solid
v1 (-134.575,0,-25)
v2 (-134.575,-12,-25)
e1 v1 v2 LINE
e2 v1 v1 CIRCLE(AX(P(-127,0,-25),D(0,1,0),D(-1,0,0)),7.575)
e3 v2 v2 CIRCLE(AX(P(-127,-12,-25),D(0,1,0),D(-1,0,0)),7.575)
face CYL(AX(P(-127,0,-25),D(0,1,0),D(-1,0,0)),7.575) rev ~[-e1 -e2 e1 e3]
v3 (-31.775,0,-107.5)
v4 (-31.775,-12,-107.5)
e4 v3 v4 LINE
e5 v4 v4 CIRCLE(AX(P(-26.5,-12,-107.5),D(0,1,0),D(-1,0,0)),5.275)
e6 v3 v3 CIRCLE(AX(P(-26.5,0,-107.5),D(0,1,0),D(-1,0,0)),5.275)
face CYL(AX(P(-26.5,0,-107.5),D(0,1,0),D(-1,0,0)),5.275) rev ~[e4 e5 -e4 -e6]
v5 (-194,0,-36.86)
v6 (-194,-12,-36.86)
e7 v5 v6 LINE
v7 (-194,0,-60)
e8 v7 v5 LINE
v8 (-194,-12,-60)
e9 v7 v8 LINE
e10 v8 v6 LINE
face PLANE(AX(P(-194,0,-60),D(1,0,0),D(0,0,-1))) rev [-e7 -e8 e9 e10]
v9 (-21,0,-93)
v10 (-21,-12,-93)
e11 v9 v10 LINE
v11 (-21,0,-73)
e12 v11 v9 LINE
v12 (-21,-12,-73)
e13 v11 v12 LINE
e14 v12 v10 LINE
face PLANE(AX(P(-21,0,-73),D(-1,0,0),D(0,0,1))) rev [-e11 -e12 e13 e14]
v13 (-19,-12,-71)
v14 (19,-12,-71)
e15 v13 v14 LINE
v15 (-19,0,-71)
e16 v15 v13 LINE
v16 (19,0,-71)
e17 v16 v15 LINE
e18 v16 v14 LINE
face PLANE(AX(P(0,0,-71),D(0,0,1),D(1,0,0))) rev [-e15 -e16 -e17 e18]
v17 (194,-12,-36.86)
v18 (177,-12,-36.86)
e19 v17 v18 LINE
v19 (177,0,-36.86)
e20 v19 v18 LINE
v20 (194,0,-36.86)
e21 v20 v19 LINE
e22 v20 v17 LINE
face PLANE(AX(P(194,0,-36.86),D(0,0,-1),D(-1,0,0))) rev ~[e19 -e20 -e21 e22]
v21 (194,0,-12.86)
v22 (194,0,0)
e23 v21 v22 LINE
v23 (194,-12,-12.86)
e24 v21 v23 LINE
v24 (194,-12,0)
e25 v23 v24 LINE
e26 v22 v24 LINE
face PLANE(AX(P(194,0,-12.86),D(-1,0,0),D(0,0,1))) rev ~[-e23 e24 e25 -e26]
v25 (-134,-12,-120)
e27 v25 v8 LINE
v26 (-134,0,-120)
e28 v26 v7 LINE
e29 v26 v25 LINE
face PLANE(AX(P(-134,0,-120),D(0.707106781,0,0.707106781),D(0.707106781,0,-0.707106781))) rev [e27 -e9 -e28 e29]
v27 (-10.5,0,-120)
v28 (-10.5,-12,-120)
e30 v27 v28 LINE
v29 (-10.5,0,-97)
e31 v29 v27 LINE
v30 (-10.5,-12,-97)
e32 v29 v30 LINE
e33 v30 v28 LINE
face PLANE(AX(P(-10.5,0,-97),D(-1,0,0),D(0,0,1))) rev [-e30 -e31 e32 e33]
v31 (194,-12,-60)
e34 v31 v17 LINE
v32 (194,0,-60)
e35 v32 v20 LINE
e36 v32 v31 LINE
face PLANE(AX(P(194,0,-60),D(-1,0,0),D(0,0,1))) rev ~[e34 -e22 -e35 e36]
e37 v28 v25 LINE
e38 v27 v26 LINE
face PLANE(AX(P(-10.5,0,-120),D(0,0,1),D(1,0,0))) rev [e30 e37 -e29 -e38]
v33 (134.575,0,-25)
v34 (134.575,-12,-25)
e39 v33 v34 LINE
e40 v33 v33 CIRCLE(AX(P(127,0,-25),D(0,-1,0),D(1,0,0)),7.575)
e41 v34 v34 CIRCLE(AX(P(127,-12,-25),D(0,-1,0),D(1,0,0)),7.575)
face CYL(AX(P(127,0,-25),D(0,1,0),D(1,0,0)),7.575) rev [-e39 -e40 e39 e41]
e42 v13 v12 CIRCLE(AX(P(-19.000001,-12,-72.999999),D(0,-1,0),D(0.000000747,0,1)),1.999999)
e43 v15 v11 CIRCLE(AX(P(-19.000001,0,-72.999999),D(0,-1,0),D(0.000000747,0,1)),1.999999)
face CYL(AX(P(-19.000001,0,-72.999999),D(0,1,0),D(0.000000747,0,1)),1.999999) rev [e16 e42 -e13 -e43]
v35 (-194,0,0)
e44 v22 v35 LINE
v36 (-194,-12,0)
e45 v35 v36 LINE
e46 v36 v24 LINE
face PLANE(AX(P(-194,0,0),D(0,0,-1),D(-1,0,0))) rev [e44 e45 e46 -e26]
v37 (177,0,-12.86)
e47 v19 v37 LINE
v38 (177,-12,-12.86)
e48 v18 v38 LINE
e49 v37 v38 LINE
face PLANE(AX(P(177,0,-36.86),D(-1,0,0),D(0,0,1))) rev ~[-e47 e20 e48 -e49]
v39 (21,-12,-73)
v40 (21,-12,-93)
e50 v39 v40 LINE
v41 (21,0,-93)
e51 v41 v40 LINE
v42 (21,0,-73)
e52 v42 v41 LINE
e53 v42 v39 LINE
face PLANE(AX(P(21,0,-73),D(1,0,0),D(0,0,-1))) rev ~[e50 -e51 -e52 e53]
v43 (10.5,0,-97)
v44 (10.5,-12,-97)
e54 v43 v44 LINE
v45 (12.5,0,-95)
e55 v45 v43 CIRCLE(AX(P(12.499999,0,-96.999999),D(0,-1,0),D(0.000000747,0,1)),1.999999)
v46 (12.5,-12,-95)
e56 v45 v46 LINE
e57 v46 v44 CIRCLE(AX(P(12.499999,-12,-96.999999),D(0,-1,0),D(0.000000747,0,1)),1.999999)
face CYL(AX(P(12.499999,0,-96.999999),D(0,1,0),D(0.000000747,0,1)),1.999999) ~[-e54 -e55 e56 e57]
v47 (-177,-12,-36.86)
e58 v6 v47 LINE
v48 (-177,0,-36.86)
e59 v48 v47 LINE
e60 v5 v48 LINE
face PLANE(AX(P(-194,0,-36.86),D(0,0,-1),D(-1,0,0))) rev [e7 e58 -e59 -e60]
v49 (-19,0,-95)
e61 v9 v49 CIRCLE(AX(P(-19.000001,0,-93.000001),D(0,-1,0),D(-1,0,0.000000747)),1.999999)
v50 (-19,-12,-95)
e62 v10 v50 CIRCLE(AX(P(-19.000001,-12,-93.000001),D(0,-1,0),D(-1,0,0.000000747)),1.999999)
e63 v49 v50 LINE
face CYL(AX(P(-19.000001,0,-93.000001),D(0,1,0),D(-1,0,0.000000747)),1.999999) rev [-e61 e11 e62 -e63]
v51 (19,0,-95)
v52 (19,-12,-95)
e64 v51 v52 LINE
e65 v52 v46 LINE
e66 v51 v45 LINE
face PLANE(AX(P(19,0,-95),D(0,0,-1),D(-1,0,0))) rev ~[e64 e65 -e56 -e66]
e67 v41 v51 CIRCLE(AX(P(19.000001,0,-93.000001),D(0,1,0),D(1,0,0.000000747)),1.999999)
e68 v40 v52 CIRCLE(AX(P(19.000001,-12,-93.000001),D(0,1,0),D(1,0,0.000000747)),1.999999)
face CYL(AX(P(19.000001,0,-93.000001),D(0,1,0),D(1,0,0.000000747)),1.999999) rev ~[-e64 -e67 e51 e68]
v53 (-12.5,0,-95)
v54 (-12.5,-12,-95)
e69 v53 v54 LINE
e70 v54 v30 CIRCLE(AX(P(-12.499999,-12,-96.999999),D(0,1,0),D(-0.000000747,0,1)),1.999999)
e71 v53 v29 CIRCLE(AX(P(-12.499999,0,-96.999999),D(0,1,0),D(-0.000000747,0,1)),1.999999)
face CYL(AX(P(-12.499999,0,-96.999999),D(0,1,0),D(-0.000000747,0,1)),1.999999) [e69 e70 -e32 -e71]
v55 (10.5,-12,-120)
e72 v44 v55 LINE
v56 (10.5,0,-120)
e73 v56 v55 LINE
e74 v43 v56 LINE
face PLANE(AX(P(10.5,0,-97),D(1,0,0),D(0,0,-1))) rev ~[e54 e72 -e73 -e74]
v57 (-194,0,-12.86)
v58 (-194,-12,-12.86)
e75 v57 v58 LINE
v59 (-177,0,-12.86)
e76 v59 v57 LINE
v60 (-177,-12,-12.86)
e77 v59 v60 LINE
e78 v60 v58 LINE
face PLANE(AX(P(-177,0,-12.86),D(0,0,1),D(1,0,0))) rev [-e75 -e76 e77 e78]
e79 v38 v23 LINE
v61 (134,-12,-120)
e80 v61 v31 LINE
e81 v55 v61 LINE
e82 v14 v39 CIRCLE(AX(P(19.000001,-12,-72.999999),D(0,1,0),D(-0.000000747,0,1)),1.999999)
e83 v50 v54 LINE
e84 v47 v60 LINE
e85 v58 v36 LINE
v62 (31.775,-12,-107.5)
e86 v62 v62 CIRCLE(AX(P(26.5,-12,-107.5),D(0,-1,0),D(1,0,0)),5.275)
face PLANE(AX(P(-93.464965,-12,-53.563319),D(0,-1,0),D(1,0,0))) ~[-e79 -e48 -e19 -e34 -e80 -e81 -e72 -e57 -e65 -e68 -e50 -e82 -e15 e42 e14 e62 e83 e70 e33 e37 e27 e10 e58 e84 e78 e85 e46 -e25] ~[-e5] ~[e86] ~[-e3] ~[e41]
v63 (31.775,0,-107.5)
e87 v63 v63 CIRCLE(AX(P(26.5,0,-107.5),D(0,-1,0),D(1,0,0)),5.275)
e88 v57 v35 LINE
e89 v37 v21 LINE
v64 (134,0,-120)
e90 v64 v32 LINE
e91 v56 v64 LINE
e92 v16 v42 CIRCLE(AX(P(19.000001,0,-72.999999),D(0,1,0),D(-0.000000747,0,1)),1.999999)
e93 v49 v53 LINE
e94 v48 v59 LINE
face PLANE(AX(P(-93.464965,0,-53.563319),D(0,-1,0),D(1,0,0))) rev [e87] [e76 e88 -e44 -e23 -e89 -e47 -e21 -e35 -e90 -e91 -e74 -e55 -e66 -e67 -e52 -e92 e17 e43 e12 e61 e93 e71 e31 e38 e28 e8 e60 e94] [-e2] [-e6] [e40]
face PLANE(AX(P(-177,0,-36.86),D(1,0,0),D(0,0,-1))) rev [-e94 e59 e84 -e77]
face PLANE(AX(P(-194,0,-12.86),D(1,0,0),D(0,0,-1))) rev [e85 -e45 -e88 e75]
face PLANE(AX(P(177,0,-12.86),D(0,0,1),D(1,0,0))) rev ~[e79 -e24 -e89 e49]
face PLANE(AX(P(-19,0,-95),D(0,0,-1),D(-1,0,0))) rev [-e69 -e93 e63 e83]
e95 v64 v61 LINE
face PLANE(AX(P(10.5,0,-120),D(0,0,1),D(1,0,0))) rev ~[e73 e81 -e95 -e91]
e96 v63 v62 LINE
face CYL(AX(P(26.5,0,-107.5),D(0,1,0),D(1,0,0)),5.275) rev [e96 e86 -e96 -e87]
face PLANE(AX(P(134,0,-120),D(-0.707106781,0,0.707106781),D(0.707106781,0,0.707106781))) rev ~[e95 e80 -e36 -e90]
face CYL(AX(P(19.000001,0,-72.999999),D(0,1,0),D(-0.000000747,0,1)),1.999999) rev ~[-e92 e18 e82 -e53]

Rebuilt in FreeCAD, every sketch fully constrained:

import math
import FreeCAD as App
import Part
import Sketcher
Q = App.Units.Quantity

doc = App.newDocument("Part")
params = doc.addObject("Spreadsheet::Sheet", "Params")
for row, (alias, value) in enumerate([
    ("sketch1_radius", "1.999999 mm"),
    ("sketch1_diameter", "10.55 mm"),
    ("sketch1_diameter2", "15.15 mm"),
    ("sketch1_width", "194 mm"),
    ("sketch1_width2", "19 mm"),
    ("pad1_length", "12 mm"),
], start=1):
    params.set(f"A{row}", alias)
    params.set(f"B{row}", "=" + value)
    params.setAlias(f"B{row}", alias)

body = doc.addObject("PartDesign::Body", "Body")

sketch1 = body.newObject("Sketcher::SketchObject", "Sketch")
sketch1.AttachmentSupport = (doc.getObject("XZ_Plane"), [""])
sketch1.MapMode = "FlatFace"
sketch1.addGeometry(Part.LineSegment(App.Vector(194, 0, 0), App.Vector(0, 0, 0)), False)
sketch1.addGeometry(Part.LineSegment(App.Vector(0, 0, 0), App.Vector(0, -71, 0)), False)
sketch1.addGeometry(Part.LineSegment(App.Vector(0, -71, 0), App.Vector(19, -71, 0)), False)
sketch1.addGeometry(Part.ArcOfCircle(Part.Circle(App.Vector(19, -73, 0), App.Vector(0, 0, 1), 2), math.radians(0), math.radians(90)), False)
sketch1.addGeometry(Part.LineSegment(App.Vector(21, -73, 0), App.Vector(21, -93, 0)), False)
sketch1.addGeometry(Part.ArcOfCircle(Part.Circle(App.Vector(19, -93, 0), App.Vector(0, 0, 1), 2), math.radians(-90), math.radians(0)), False)
sketch1.addGeometry(Part.LineSegment(App.Vector(19, -95, 0), App.Vector(12.5, -95, 0)), False)
sketch1.addGeometry(Part.ArcOfCircle(Part.Circle(App.Vector(12.5, -97, 0), App.Vector(0, 0, 1), 2), math.radians(90), math.radians(180)), False)
sketch1.addGeometry(Part.LineSegment(App.Vector(10.5, -97, 0), App.Vector(10.5, -120, 0)), False)
sketch1.addGeometry(Part.LineSegment(App.Vector(10.5, -120, 0), App.Vector(134, -120, 0)), False)
sketch1.addGeometry(Part.LineSegment(App.Vector(134, -120, 0), App.Vector(194, -60, 0)), False)
sketch1.addGeometry(Part.LineSegment(App.Vector(194, -60, 0), App.Vector(194, -36.9, 0)), False)
sketch1.addGeometry(Part.LineSegment(App.Vector(194, -36.9, 0), App.Vector(177, -36.9, 0)), False)
sketch1.addGeometry(Part.LineSegment(App.Vector(177, -36.9, 0), App.Vector(177, -12.9, 0)), False)
sketch1.addGeometry(Part.LineSegment(App.Vector(177, -12.9, 0), App.Vector(194, -12.9, 0)), False)
sketch1.addGeometry(Part.LineSegment(App.Vector(194, -12.9, 0), App.Vector(194, 0, 0)), False)
sketch1.addGeometry(Part.Circle(App.Vector(26.5, -107.5, 0), App.Vector(0, 0, 1), 5.3), False)
sketch1.addGeometry(Part.Circle(App.Vector(127, -25, 0), App.Vector(0, 0, 1), 7.6), False)
sketch1.addConstraint(Sketcher.Constraint("Coincident", 0, 2, 1, 1))
sketch1.addConstraint(Sketcher.Constraint("Coincident", 1, 2, 2, 1))
sketch1.addConstraint(Sketcher.Constraint("Tangent", 2, 2, 3, 2))
sketch1.addConstraint(Sketcher.Constraint("Tangent", 3, 1, 4, 1))
sketch1.addConstraint(Sketcher.Constraint("Tangent", 4, 2, 5, 2))
sketch1.addConstraint(Sketcher.Constraint("Tangent", 5, 1, 6, 1))
sketch1.addConstraint(Sketcher.Constraint("Tangent", 6, 2, 7, 1))
sketch1.addConstraint(Sketcher.Constraint("Tangent", 7, 2, 8, 1))
sketch1.addConstraint(Sketcher.Constraint("Coincident", 8, 2, 9, 1))
sketch1.addConstraint(Sketcher.Constraint("Coincident", 9, 2, 10, 1))
sketch1.addConstraint(Sketcher.Constraint("Coincident", 10, 2, 11, 1))
sketch1.addConstraint(Sketcher.Constraint("Coincident", 11, 2, 12, 1))
sketch1.addConstraint(Sketcher.Constraint("Coincident", 12, 2, 13, 1))
sketch1.addConstraint(Sketcher.Constraint("Coincident", 13, 2, 14, 1))
sketch1.addConstraint(Sketcher.Constraint("Coincident", 14, 2, 15, 1))
sketch1.addConstraint(Sketcher.Constraint("Coincident", 15, 2, 0, 1))
sketch1.addConstraint(Sketcher.Constraint("Horizontal", 0))
sketch1.addConstraint(Sketcher.Constraint("Vertical", 1))
sketch1.addConstraint(Sketcher.Constraint("Horizontal", 2))
sketch1.addConstraint(Sketcher.Constraint("Vertical", 4))
sketch1.addConstraint(Sketcher.Constraint("Horizontal", 6))
sketch1.addConstraint(Sketcher.Constraint("Vertical", 8))
sketch1.addConstraint(Sketcher.Constraint("Horizontal", 9))
sketch1.addConstraint(Sketcher.Constraint("Vertical", 11))
sketch1.addConstraint(Sketcher.Constraint("Horizontal", 12))
sketch1.addConstraint(Sketcher.Constraint("Vertical", 13))
sketch1.addConstraint(Sketcher.Constraint("Horizontal", 14))
sketch1.addConstraint(Sketcher.Constraint("Vertical", 15))
sketch1.addConstraint(Sketcher.Constraint("Coincident", 0, 2, -1, 1))
sketch1.addConstraint(Sketcher.Constraint("Equal", 3, 5))
sketch1.addConstraint(Sketcher.Constraint("Equal", 5, 7))
sketch1.addConstraint(Sketcher.Constraint("Vertical", 11, 2, 14, 2))
sketch1.addConstraint(Sketcher.Constraint("Radius", 3, Q("1.999999 mm")))
sketch1.addConstraint(Sketcher.Constraint("Diameter", 16, Q("10.55 mm")))
sketch1.addConstraint(Sketcher.Constraint("Diameter", 17, Q("15.15 mm")))
sketch1.addConstraint(Sketcher.Constraint("DistanceX", 0, 2, 0, 1, Q("194 mm")))
sketch1.addConstraint(Sketcher.Constraint("DistanceX", 2, 1, 2, 2, Q("19 mm")))
sketch1.addConstraint(Sketcher.Constraint("DistanceX", 12, 2, 12, 1, Q("17 mm")))
sketch1.addConstraint(Sketcher.Constraint("DistanceY", 1, 2, 1, 1, Q("71 mm")))
sketch1.addConstraint(Sketcher.Constraint("DistanceY", 4, 2, 4, 1, Q("20 mm")))
sketch1.addConstraint(Sketcher.Constraint("DistanceY", 8, 2, 8, 1, Q("23 mm")))
sketch1.addConstraint(Sketcher.Constraint("DistanceY", 13, 1, 13, 2, Q("24 mm")))
sketch1.addConstraint(Sketcher.Constraint("Angle", 10, Q("45 deg")))
sketch1.addConstraint(Sketcher.Constraint("DistanceX", 6, 2, 6, 1, Q("6.5 mm")))
sketch1.addConstraint(Sketcher.Constraint("DistanceX", 9, 1, 9, 2, Q("123.5 mm")))
sketch1.addConstraint(Sketcher.Constraint("DistanceX", -1, 1, 17, 3, Q("127 mm")))
sketch1.addConstraint(Sketcher.Constraint("DistanceY", 17, 3, -1, 1, Q("25 mm")))
sketch1.addConstraint(Sketcher.Constraint("DistanceX", 7, 3, 16, 3, Q("14.000001 mm")))
sketch1.addConstraint(Sketcher.Constraint("DistanceY", 11, 1, 11, 2, Q("23.14 mm")))
sketch1.addConstraint(Sketcher.Constraint("DistanceY", 16, 3, -1, 1, Q("107.5 mm")))
sketch1.setExpression("Constraints[32]", "Params.sketch1_radius")
sketch1.setExpression("Constraints[33]", "Params.sketch1_diameter")
sketch1.setExpression("Constraints[34]", "Params.sketch1_diameter2")
sketch1.setExpression("Constraints[35]", "Params.sketch1_width")
sketch1.setExpression("Constraints[36]", "Params.sketch1_width2")
pad1 = body.newObject("PartDesign::Pad", "Pad")
pad1.Profile = sketch1
pad1.setExpression("Length", "Params.pad1_length")
body2 = doc.addObject("PartDesign::Body", "Body001")
doc.recompute()

body2.BaseFeature = body
doc.recompute()

mirroring = doc.addObject("Part::Mirroring", "Mirroring")
mirroring.Source = body
mirroring.Base = App.Vector(0, -6, -35.5)
mirroring.Normal = App.Vector(-1, 0, 0)
body3 = doc.addObject("PartDesign::Body", "Body002")
body3.BaseFeature = mirroring
boolean = body2.newObject("PartDesign::Boolean", "Boolean")
boolean.Type = "Fuse"
boolean.addObjects([body3])
doc.recompute()
mirroring.Visibility = False

doc.recompute()
